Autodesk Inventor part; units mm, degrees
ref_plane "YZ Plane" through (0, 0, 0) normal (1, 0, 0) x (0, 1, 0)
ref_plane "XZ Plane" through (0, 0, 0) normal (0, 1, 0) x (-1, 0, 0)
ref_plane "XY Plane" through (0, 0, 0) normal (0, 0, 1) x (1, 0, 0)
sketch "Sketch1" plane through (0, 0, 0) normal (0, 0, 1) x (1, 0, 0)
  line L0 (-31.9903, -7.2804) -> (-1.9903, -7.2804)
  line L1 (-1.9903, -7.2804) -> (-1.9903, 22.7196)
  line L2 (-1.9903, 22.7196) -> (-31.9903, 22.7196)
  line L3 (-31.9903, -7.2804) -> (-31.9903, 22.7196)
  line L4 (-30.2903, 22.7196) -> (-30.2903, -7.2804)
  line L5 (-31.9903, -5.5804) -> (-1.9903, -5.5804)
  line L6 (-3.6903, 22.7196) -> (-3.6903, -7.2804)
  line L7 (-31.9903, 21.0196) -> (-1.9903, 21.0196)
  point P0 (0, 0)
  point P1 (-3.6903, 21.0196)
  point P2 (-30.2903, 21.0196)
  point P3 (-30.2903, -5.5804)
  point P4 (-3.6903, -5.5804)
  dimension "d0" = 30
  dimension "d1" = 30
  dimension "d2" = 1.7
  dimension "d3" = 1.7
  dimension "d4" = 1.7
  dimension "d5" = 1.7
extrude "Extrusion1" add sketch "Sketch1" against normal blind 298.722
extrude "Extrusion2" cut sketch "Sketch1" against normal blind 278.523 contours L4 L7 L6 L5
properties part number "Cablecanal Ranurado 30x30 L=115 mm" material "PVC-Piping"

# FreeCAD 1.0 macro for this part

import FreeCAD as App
import Part
import Sketcher
Q = App.Units.Quantity


def add_polygon(sketch, points):
    """Adds a closed chain of lines whose ends are joined by coincident constraints."""
    first, n = sketch.GeometryCount, len(points)
    for a, b in zip(points, points[1:] + points[:1]):
        sketch.addGeometry(Part.LineSegment(App.Vector(*a, 0), App.Vector(*b, 0)), False)
    for i in range(n):
        sketch.addConstraint(Sketcher.Constraint("Coincident", first + i, 2, first + (i + 1) % n, 1))

doc = App.newDocument("Part")
params = doc.addObject("Spreadsheet::Sheet", "Params")
for row, (alias, value) in enumerate([
    ("sketch1_width", "30 mm"),
    ("pad1_length", "298.722 mm"),
    ("sketch2_width", "26.6 mm"),
    ("pocket1_length", "278.523 mm"),
], start=1):
    params.set(f"A{row}", alias)
    params.set(f"B{row}", "=" + value)
    params.setAlias(f"B{row}", alias)

body = doc.addObject("PartDesign::Body", "Body")

sketch1 = doc.addObject("Sketcher::SketchObject", "Sketch")
body.addObject(sketch1)
sketch1.AttachmentSupport = (doc.XY_Plane, [""])
sketch1.MapMode = "FlatFace"
add_polygon(sketch1, [(-32, -7), (-2, -7), (-2, 23), (-32, 23)])
sketch1.addConstraint([
    Sketcher.Constraint("Horizontal", 0),
    Sketcher.Constraint("Vertical", 1),
    Sketcher.Constraint("Horizontal", 2),
    Sketcher.Constraint("Vertical", 3),
    Sketcher.Constraint("Equal", 2, 1),
    Sketcher.Constraint("DistanceX", 0, 1, 0, 2, Q("30 mm")),
    Sketcher.Constraint("DistanceX", 0, 2, -1, 1, Q("1.9903 mm")),
    Sketcher.Constraint("DistanceY", 0, 2, -1, 1, Q("7.2804 mm")),
])
sketch1.setExpression("Constraints[9]", "Params.sketch1_width")
pad1 = doc.addObject("PartDesign::Pad", "Pad")
body.addObject(pad1)
pad1.Profile = sketch1
pad1.setExpression("Length", "Params.pad1_length")
pad1.Reversed = True

sketch2 = doc.addObject("Sketcher::SketchObject", "Sketch001")
body.addObject(sketch2)
sketch2.AttachmentSupport = (doc.XY_Plane, [""])
sketch2.MapMode = "FlatFace"
add_polygon(sketch2, [(-30, 21), (-30, -6), (-4, -6), (-4, 21)])
sketch2.addConstraint([
    Sketcher.Constraint("Vertical", 0),
    Sketcher.Constraint("Horizontal", 1),
    Sketcher.Constraint("Vertical", 2),
    Sketcher.Constraint("Horizontal", 3),
    Sketcher.Constraint("Equal", 3, 0),
    Sketcher.Constraint("DistanceX", 1, 1, 1, 2, Q("26.6 mm")),
    Sketcher.Constraint("DistanceX", 0, 2, -1, 1, Q("30.2903 mm")),
    Sketcher.Constraint("DistanceY", 0, 2, -1, 1, Q("5.5804 mm")),
])
sketch2.setExpression("Constraints[9]", "Params.sketch2_width")
pocket1 = doc.addObject("PartDesign::Pocket", "Pocket")
body.addObject(pocket1)
pocket1.Profile = sketch2
pocket1.setExpression("Length", "Params.pocket1_length")

doc.recompute()
